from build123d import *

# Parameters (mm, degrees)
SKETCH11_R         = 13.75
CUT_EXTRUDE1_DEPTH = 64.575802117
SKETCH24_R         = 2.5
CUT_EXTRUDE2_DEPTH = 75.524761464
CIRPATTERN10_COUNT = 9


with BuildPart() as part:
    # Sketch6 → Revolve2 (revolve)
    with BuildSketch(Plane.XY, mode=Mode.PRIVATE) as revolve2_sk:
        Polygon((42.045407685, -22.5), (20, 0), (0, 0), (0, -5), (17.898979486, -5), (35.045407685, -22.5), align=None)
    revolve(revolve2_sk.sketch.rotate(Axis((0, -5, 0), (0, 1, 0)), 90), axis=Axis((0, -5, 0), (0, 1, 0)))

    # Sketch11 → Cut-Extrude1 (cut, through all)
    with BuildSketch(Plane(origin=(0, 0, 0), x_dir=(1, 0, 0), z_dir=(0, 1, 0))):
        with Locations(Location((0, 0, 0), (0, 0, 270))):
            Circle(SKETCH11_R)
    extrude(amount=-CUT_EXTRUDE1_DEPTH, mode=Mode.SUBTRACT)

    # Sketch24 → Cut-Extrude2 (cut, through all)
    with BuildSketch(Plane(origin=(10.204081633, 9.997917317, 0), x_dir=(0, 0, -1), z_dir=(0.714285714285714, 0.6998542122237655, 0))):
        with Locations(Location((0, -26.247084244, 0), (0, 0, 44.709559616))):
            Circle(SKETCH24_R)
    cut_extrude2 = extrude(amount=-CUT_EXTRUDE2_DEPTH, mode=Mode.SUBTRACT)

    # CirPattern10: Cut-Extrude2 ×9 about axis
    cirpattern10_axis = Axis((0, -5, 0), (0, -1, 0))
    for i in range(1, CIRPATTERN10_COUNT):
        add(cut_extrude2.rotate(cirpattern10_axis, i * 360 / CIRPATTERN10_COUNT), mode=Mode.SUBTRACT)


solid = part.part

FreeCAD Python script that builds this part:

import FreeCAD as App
import Part
import Sketcher

V = App.Vector
Q = App.Units.Quantity

doc = App.newDocument("Part")
body = doc.addObject("PartDesign::Body", "Body")

# Sketch on XY plane
sketch1 = doc.addObject("Sketcher::SketchObject", "Sketch")
body.addObject(sketch1)
sketch1.AttachmentSupport = (doc.XY_Plane, [""])
sketch1.MapMode = "FlatFace"
sketch1.addGeometry([
    Part.LineSegment(V(42, -22, 0), V(20, 0, 0)),  # 0
    Part.LineSegment(V(20, 0, 0), V(0, 0, 0)),  # 1
    Part.LineSegment(V(0, 0, 0), V(0, -5, 0)),  # 2
    Part.LineSegment(V(0, -5, 0), V(18, -5, 0)),  # 3
    Part.LineSegment(V(18, -5, 0), V(35, -22, 0)),  # 4
    Part.LineSegment(V(35, -22, 0), V(42, -22, 0)),  # 5
], False)
sketch1.addConstraint([
    Sketcher.Constraint("Coincident", 0, 2, 1, 1),
    Sketcher.Constraint("Coincident", 1, 2, 2, 1),
    Sketcher.Constraint("Coincident", 2, 2, 3, 1),
    Sketcher.Constraint("Coincident", 3, 2, 4, 1),
    Sketcher.Constraint("Coincident", 4, 2, 5, 1),
    Sketcher.Constraint("Coincident", 5, 2, 0, 1),
    Sketcher.Constraint("Horizontal", 1),
    Sketcher.Constraint("Vertical", 2),
    Sketcher.Constraint("Horizontal", 3),
    Sketcher.Constraint("Horizontal", 5),
    Sketcher.Constraint("Coincident", 1, 2, -1, 1),
    Sketcher.Constraint("Parallel", 0, 4),
    Sketcher.Constraint("DistanceX", 1, 2, 1, 1, Q("20 mm")),
    Sketcher.Constraint("DistanceX", 5, 1, 5, 2, Q("7 mm")),
    Sketcher.Constraint("DistanceY", 2, 2, 2, 1, Q("5 mm")),
    Sketcher.Constraint("Distance", 0, Q("31.5 mm")),
    Sketcher.Constraint("Distance", 4, Q("24.5 mm")),
])
revolution = doc.addObject("PartDesign::Revolution", "Revolution")
body.addObject(revolution)
revolution.Profile = sketch1
revolution.ReferenceAxis = (sketch1, ["V_Axis"])
revolution.Angle = 360

# Sketch on XZ plane
sketch2 = doc.addObject("Sketcher::SketchObject", "Sketch001")
body.addObject(sketch2)
sketch2.AttachmentSupport = (doc.XZ_Plane, [""])
sketch2.MapMode = "FlatFace"
sketch2.addGeometry(Part.Circle(V(0, 0, 0), V(0, 0, 1), 14), False)
sketch2.addConstraint([
    Sketcher.Constraint("Coincident", 0, 3, -1, 1),
    Sketcher.Constraint("Diameter", 0, Q("27.5 mm")),
])
pocket1 = doc.addObject("PartDesign::Pocket", "Pocket")
body.addObject(pocket1)
pocket1.Profile = sketch2
pocket1.Type = "ThroughAll"
pocket1.Reversed = True

# Sketch on an angled plane
sketch3 = doc.addObject("Sketcher::SketchObject", "Sketch002")
body.addObject(sketch3)
sketch3.Placement = App.Placement(V(10.204082, 9.997917, 0), App.Rotation(V(0, 0, -1), V(-0.699854212, 0.714285714, 0), V(0.714285714, 0.699854212, 0), "ZXY"))
sketch3.addGeometry(Part.Circle(V(0, -26.2, 0), V(0, 0, 1), 2.5), False)
sketch3.addConstraint([
    Sketcher.Constraint("PointOnObject", 0, 3, -2),
    Sketcher.Constraint("Diameter", 0, Q("5 mm")),
    Sketcher.Constraint("DistanceY", 0, 3, -1, 1, Q("26.247084 mm")),
])
pocket2 = doc.addObject("PartDesign::Pocket", "Pocket001")
body.addObject(pocket2)
pocket2.Profile = sketch3
pocket2.Type = "ThroughAll"
doc.recompute()

polarpattern = doc.addObject("PartDesign::PolarPattern", "PolarPattern")
body.addObject(polarpattern)
polarpattern.Originals = [pocket2]
polarpattern.Axis = (doc.Y_Axis, [""])
polarpattern.Angle = 360
polarpattern.Occurrences = 9
body.Tip = polarpattern

doc.recompute()
